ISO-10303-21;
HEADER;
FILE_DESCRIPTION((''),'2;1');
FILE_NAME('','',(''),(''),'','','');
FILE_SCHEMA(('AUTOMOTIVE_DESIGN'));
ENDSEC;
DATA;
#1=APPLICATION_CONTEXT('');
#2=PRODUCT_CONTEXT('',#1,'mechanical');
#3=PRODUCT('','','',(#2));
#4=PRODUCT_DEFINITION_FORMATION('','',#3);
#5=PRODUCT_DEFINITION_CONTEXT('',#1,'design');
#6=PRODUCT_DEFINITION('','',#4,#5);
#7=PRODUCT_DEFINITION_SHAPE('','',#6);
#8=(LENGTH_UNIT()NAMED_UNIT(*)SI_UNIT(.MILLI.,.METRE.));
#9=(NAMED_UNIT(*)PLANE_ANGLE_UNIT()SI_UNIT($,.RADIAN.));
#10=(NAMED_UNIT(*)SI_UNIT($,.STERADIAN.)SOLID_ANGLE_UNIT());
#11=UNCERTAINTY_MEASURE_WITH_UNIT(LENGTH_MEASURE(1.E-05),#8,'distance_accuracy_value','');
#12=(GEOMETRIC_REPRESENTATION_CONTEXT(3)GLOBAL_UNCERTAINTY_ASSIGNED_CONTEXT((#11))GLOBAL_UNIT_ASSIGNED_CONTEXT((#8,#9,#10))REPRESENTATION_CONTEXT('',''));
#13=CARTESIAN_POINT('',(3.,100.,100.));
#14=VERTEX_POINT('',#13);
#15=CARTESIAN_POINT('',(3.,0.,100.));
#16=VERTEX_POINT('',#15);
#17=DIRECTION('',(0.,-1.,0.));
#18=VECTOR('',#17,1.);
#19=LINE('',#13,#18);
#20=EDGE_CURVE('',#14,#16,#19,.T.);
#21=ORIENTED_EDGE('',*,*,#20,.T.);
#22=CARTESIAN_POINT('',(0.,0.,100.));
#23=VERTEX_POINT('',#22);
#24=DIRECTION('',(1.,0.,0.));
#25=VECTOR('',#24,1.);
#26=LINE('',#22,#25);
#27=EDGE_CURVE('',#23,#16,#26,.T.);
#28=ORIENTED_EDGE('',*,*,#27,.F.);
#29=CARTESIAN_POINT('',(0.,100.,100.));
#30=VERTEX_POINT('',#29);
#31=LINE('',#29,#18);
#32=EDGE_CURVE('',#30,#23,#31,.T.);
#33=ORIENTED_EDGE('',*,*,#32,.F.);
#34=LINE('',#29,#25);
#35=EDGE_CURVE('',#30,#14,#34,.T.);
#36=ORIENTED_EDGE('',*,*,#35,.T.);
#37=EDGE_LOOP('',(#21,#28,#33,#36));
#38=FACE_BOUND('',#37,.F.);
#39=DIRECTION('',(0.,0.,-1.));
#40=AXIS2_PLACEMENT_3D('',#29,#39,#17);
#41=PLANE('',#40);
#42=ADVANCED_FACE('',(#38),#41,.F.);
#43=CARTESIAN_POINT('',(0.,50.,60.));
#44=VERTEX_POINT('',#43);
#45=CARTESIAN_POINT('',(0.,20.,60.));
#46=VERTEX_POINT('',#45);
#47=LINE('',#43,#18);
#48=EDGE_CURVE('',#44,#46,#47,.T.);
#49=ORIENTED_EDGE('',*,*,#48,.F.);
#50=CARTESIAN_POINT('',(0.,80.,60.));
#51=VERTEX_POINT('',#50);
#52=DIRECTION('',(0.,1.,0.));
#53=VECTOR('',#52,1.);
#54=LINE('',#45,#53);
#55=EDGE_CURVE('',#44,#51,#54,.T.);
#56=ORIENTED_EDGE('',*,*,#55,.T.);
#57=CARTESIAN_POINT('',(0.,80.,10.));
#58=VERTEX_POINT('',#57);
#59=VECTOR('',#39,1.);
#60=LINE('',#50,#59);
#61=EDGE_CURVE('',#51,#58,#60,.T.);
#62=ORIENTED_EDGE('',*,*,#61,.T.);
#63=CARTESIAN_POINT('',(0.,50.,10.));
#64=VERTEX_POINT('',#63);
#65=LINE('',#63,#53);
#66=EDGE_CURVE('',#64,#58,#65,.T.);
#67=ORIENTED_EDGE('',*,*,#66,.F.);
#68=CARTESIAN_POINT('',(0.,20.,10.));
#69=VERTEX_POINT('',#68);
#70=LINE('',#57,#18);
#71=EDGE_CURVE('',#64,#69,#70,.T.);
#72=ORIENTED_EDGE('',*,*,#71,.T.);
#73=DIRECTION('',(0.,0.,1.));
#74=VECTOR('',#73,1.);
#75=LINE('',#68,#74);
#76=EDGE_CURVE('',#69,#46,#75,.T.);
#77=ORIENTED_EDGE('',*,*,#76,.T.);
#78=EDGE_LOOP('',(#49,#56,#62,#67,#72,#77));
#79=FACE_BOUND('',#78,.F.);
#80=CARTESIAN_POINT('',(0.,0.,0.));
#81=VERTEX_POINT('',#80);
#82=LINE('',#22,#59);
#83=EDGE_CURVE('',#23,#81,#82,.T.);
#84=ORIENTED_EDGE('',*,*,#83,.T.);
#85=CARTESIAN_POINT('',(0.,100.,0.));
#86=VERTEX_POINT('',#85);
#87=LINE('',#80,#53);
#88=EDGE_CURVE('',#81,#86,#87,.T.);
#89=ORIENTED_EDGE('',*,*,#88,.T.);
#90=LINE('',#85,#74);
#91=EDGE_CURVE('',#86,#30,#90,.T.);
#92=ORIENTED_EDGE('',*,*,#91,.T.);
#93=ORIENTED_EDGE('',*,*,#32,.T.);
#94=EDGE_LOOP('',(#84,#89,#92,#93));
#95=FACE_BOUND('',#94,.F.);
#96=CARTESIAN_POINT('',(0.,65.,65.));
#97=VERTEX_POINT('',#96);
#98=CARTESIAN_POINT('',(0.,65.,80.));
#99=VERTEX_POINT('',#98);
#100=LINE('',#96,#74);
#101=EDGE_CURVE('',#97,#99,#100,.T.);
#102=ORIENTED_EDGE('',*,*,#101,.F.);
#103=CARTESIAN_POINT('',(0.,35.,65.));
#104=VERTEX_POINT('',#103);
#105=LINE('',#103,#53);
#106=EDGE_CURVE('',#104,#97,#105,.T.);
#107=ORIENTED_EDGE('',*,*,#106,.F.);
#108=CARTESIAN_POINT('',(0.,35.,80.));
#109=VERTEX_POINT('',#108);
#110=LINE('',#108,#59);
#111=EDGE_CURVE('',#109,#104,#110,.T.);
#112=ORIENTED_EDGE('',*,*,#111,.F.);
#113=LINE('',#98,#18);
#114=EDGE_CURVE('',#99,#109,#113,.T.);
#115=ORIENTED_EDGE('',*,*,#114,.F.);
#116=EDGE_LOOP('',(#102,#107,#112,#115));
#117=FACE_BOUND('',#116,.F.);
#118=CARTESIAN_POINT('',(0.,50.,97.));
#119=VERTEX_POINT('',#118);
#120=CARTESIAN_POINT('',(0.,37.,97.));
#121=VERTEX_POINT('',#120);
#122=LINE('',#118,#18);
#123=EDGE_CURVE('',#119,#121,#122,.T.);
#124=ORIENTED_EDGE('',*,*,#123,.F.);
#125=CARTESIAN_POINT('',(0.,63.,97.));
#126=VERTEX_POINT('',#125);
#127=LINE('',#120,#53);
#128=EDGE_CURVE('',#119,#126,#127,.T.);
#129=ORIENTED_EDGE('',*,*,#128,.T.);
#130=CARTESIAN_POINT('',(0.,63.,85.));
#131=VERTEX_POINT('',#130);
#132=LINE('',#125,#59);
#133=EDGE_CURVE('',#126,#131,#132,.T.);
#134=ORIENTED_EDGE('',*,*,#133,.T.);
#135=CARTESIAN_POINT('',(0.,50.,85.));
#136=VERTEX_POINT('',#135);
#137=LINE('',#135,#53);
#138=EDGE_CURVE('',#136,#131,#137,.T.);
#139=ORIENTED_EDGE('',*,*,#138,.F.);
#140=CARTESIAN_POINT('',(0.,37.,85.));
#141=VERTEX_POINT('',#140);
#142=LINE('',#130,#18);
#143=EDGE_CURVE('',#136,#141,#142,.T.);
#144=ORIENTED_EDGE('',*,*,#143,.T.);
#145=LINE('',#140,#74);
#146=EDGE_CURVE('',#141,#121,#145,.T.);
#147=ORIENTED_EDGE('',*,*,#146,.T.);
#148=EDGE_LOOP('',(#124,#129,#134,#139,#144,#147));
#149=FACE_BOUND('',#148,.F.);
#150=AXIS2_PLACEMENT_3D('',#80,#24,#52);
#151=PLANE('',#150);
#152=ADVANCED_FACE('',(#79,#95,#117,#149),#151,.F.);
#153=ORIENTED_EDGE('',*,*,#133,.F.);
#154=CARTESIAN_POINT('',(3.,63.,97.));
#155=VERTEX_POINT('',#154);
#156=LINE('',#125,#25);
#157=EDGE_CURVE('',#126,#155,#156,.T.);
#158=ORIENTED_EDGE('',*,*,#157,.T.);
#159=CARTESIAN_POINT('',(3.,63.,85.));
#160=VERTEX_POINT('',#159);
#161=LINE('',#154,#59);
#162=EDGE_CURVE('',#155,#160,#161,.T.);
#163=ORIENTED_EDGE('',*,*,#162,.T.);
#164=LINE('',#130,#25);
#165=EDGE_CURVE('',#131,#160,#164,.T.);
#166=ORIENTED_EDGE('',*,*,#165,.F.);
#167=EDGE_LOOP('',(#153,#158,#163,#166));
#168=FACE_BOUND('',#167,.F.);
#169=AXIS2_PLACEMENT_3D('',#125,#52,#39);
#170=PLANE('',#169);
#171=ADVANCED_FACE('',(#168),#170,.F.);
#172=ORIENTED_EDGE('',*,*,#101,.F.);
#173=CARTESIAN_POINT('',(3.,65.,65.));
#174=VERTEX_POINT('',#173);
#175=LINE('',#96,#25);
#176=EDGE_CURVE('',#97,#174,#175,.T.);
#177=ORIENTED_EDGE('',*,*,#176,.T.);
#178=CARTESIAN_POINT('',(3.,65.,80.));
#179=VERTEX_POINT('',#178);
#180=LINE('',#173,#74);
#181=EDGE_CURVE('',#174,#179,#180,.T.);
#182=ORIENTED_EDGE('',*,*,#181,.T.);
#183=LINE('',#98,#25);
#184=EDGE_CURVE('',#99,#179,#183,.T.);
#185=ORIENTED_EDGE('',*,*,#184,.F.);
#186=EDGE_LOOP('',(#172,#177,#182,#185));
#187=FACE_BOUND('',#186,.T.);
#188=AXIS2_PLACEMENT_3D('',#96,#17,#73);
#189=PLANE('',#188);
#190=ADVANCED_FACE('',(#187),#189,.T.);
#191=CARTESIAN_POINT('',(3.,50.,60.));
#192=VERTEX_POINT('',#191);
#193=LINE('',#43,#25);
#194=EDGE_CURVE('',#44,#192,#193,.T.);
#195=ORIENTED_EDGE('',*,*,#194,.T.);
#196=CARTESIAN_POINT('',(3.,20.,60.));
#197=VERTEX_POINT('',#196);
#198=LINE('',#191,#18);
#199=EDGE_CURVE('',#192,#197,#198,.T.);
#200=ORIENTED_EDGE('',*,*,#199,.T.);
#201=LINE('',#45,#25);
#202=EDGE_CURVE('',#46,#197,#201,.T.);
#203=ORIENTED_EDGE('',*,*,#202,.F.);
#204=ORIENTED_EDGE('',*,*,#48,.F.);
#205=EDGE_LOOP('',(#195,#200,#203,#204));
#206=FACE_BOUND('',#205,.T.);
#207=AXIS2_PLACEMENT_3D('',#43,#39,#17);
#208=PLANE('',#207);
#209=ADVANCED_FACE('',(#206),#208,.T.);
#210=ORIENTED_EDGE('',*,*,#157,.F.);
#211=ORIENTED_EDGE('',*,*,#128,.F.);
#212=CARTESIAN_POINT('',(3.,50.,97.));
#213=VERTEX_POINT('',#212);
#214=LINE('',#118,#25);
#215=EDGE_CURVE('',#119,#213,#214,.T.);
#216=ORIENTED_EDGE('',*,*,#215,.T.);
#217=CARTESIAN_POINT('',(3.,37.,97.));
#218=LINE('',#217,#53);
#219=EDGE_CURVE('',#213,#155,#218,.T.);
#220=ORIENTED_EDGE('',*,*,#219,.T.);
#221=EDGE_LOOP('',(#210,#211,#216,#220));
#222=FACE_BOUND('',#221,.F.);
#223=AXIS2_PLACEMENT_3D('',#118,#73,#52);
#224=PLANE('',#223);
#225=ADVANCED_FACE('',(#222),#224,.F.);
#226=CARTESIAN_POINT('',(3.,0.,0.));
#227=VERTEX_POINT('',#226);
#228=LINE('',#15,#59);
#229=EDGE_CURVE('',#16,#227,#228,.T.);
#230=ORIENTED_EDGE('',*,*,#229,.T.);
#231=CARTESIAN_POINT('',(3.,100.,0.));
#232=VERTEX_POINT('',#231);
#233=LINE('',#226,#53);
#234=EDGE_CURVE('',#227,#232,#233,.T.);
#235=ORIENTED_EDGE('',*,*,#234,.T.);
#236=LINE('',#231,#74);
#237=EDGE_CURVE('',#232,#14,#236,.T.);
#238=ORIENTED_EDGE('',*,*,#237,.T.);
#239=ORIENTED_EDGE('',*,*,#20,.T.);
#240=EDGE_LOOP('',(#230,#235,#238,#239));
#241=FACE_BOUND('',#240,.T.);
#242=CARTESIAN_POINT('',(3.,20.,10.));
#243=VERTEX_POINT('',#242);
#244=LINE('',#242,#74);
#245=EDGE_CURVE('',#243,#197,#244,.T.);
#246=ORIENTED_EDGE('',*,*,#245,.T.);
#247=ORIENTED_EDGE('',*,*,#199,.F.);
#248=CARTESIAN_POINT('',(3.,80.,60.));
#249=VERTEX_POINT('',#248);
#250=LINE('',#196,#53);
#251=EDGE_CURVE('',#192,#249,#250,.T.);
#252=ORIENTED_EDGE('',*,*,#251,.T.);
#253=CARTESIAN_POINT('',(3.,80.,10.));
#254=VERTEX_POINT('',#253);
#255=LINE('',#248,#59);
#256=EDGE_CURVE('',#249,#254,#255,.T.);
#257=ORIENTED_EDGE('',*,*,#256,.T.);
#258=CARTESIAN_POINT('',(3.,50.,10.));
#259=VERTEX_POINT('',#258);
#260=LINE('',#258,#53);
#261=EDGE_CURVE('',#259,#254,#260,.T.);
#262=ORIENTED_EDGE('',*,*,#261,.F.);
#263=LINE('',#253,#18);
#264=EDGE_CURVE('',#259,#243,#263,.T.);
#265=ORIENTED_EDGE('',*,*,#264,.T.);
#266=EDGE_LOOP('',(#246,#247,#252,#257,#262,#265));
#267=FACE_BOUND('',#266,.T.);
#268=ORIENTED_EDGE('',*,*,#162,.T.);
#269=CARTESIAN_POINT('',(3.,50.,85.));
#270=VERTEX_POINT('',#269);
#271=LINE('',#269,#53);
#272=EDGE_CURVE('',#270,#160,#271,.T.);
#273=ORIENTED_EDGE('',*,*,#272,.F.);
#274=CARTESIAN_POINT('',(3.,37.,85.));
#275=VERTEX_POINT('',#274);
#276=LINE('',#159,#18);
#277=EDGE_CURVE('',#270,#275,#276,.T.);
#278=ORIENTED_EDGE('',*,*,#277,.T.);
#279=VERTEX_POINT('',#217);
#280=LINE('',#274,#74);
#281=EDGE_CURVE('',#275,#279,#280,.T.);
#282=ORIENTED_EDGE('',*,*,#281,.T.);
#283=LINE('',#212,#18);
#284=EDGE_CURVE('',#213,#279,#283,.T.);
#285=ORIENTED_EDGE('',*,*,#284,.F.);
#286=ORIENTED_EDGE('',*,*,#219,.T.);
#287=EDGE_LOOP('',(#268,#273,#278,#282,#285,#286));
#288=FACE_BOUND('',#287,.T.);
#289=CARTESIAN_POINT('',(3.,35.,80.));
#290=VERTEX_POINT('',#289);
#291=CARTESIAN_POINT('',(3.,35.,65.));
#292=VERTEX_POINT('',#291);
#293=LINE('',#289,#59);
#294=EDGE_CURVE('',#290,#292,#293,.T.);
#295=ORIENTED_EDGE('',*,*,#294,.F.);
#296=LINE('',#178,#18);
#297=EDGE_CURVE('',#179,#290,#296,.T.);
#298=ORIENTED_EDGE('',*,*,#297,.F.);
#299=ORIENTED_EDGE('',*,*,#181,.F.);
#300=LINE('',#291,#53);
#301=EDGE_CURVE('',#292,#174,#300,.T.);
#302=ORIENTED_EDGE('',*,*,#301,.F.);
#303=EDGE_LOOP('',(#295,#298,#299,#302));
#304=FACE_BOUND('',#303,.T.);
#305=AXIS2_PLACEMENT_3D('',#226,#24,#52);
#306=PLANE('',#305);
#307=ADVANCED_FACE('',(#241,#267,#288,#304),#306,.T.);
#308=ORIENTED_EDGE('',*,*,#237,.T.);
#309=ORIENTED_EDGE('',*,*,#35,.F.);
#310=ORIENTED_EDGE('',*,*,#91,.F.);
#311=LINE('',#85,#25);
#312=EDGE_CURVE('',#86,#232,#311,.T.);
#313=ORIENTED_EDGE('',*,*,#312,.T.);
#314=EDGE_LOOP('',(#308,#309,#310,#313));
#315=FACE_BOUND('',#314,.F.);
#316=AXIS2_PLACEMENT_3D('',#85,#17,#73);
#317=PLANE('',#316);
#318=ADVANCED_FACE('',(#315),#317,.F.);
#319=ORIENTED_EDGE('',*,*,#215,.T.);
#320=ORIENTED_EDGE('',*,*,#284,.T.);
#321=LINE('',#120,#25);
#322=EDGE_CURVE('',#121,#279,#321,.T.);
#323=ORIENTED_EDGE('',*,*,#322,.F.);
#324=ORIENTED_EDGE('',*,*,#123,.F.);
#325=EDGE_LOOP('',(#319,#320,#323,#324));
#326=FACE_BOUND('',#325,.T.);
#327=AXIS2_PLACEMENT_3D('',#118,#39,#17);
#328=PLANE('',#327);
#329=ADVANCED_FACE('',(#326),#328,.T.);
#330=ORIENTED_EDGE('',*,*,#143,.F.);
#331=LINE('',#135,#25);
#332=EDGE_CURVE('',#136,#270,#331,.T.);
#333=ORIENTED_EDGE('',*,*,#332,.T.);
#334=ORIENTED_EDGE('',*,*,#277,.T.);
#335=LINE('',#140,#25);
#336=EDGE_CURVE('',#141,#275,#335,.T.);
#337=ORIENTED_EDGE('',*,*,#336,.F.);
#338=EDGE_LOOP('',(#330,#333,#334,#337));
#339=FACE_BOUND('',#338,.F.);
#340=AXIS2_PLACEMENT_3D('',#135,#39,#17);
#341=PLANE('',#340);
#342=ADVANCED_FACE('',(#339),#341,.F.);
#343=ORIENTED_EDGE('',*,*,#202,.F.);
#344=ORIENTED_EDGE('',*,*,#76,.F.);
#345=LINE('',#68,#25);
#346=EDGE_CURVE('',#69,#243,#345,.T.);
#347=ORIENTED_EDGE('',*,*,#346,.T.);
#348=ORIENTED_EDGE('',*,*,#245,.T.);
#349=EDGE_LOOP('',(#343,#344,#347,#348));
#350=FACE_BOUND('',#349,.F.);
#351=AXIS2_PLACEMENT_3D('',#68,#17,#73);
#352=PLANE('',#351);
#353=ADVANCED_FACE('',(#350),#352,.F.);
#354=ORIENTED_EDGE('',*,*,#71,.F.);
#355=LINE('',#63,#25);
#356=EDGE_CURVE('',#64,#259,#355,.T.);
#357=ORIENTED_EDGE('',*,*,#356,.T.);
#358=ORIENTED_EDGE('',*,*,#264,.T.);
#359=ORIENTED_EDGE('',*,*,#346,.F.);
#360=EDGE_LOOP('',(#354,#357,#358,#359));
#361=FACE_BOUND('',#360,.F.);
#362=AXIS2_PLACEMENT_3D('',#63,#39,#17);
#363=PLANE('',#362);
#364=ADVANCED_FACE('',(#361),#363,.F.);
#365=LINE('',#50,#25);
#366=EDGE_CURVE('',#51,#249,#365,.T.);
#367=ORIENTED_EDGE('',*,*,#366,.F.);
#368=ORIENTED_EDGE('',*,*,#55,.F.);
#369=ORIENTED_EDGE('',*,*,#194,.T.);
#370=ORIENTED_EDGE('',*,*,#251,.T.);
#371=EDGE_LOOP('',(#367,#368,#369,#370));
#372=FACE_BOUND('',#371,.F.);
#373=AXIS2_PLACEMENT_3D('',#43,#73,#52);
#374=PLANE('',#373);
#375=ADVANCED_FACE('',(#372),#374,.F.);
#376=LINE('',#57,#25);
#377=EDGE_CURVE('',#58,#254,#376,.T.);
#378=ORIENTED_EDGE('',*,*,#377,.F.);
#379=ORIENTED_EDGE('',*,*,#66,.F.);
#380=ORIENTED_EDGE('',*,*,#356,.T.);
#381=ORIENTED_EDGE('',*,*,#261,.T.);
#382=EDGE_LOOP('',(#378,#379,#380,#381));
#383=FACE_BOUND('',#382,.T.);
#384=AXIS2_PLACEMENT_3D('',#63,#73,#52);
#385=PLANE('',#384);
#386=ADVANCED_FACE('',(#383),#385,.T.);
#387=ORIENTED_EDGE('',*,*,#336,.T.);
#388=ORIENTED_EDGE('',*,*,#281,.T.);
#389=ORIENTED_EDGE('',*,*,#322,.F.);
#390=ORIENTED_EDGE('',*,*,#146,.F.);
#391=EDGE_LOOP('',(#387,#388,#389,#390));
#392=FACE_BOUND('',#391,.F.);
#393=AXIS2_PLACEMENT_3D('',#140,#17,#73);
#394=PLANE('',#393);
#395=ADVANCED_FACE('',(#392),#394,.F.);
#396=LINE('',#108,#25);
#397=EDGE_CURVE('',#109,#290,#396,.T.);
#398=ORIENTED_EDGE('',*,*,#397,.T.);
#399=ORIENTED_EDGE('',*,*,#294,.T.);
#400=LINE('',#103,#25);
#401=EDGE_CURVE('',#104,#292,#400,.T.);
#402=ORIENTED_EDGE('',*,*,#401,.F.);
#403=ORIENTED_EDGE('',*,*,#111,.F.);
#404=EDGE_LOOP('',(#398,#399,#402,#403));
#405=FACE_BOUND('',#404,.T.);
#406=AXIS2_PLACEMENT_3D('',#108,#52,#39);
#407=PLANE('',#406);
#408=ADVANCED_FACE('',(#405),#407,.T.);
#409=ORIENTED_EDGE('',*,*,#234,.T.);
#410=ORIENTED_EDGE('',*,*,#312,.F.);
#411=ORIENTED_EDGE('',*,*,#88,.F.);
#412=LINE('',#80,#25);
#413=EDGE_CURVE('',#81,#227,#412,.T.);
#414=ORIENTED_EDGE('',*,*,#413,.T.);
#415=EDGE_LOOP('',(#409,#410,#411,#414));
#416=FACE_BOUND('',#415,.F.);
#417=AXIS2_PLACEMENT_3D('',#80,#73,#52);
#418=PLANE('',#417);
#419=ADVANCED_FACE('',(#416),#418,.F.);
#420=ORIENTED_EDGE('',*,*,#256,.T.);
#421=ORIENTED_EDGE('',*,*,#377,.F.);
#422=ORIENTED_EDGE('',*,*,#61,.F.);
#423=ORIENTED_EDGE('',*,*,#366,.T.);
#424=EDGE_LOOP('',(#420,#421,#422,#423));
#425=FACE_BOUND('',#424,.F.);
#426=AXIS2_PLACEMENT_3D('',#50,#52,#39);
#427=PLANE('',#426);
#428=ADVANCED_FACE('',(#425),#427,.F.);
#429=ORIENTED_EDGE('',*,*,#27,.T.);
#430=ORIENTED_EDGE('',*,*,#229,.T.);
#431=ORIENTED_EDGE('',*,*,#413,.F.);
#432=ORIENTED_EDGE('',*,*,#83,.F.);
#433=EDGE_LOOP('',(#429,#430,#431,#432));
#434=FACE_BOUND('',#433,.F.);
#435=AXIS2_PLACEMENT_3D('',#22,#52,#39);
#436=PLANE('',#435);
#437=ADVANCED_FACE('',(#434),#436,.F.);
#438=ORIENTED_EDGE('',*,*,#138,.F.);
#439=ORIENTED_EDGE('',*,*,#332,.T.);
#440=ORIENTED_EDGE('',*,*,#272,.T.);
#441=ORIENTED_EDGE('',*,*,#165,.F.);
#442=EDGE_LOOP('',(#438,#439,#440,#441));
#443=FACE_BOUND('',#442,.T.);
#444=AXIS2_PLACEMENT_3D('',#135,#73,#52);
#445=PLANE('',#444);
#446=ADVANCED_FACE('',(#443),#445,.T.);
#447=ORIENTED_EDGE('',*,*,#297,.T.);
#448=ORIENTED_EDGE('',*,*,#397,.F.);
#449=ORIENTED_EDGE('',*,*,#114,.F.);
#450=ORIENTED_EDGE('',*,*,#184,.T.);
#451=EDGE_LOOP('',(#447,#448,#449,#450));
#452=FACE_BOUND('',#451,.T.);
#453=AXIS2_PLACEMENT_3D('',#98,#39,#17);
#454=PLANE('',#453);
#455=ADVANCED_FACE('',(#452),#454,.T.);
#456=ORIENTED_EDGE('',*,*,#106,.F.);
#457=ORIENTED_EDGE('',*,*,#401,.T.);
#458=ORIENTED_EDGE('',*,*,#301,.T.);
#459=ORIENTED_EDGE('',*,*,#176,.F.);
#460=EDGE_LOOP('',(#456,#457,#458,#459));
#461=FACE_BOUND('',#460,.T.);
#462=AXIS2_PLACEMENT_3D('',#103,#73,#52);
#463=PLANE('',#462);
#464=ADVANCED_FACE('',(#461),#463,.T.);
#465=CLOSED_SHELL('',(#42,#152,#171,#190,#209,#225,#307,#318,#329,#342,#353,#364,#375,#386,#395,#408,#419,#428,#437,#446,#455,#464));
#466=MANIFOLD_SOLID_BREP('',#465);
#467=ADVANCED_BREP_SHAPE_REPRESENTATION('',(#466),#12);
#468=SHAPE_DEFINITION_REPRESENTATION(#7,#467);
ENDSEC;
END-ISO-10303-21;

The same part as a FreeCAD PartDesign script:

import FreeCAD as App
import Part
import Sketcher

doc = App.newDocument("Part")
params = doc.addObject("Spreadsheet::Sheet", "Params")
for row, (alias, value) in enumerate([
    ("sketch1_width", "100 mm"),
    ("sketch1_width2", "30 mm"),
    ("sketch1_height", "12 mm"),
    ("sketch1_width3", "60 mm"),
    ("sketch1_width4", "26 mm"),
    ("pad1_length", "3 mm"),
], start=1):
    params.set(f"A{row}", alias)
    params.set(f"B{row}", "=" + value)
    params.setAlias(f"B{row}", alias)

body = doc.addObject("PartDesign::Body", "Body")

# Sketch on YZ plane
sketch1 = body.newObject("Sketcher::SketchObject", "Sketch")
sketch1.AttachmentSupport = (doc.getObject("YZ_Plane"), [""])
sketch1.MapMode = "FlatFace"
sketch1.addGeometry(Part.LineSegment(App.Vector(0, 100, 0), App.Vector(0, 0, 0)), False)
sketch1.addGeometry(Part.LineSegment(App.Vector(0, 0, 0), App.Vector(100, 0, 0)), False)
sketch1.addGeometry(Part.LineSegment(App.Vector(100, 0, 0), App.Vector(100, 100, 0)), False)
sketch1.addGeometry(Part.LineSegment(App.Vector(100, 100, 0), App.Vector(0, 100, 0)), False)
sketch1.addGeometry(Part.LineSegment(App.Vector(80, 10, 0), App.Vector(20, 10, 0)), False)
sketch1.addGeometry(Part.LineSegment(App.Vector(20, 10, 0), App.Vector(20, 60, 0)), False)
sketch1.addGeometry(Part.LineSegment(App.Vector(20, 60, 0), App.Vector(80, 60, 0)), False)
sketch1.addGeometry(Part.LineSegment(App.Vector(80, 60, 0), App.Vector(80, 10, 0)), False)
sketch1.addGeometry(Part.LineSegment(App.Vector(65, 65, 0), App.Vector(35, 65, 0)), False)
sketch1.addGeometry(Part.LineSegment(App.Vector(35, 65, 0), App.Vector(35, 80, 0)), False)
sketch1.addGeometry(Part.LineSegment(App.Vector(35, 80, 0), App.Vector(65, 80, 0)), False)
sketch1.addGeometry(Part.LineSegment(App.Vector(65, 80, 0), App.Vector(65, 65, 0)), False)
sketch1.addGeometry(Part.LineSegment(App.Vector(63, 85, 0), App.Vector(37, 85, 0)), False)
sketch1.addGeometry(Part.LineSegment(App.Vector(37, 85, 0), App.Vector(37, 97, 0)), False)
sketch1.addGeometry(Part.LineSegment(App.Vector(37, 97, 0), App.Vector(63, 97, 0)), False)
sketch1.addGeometry(Part.LineSegment(App.Vector(63, 97, 0), App.Vector(63, 85, 0)), False)
sketch1.addConstraint(Sketcher.Constraint("Coincident", 0, 2, 1, 1))
sketch1.addConstraint(Sketcher.Constraint("Coincident", 1, 2, 2, 1))
sketch1.addConstraint(Sketcher.Constraint("Coincident", 2, 2, 3, 1))
sketch1.addConstraint(Sketcher.Constraint("Coincident", 3, 2, 0, 1))
sketch1.addConstraint(Sketcher.Constraint("Coincident", 4, 2, 5, 1))
sketch1.addConstraint(Sketcher.Constraint("Coincident", 5, 2, 6, 1))
sketch1.addConstraint(Sketcher.Constraint("Coincident", 6, 2, 7, 1))
sketch1.addConstraint(Sketcher.Constraint("Coincident", 7, 2, 4, 1))
sketch1.addConstraint(Sketcher.Constraint("Coincident", 8, 2, 9, 1))
sketch1.addConstraint(Sketcher.Constraint("Coincident", 9, 2, 10, 1))
sketch1.addConstraint(Sketcher.Constraint("Coincident", 10, 2, 11, 1))
sketch1.addConstraint(Sketcher.Constraint("Coincident", 11, 2, 8, 1))
sketch1.addConstraint(Sketcher.Constraint("Coincident", 12, 2, 13, 1))
sketch1.addConstraint(Sketcher.Constraint("Coincident", 13, 2, 14, 1))
sketch1.addConstraint(Sketcher.Constraint("Coincident", 14, 2, 15, 1))
sketch1.addConstraint(Sketcher.Constraint("Coincident", 15, 2, 12, 1))
sketch1.addConstraint(Sketcher.Constraint("Vertical", 0))
sketch1.addConstraint(Sketcher.Constraint("Horizontal", 1))
sketch1.addConstraint(Sketcher.Constraint("Vertical", 2))
sketch1.addConstraint(Sketcher.Constraint("Horizontal", 3))
sketch1.addConstraint(Sketcher.Constraint("Horizontal", 4))
sketch1.addConstraint(Sketcher.Constraint("Vertical", 5))
sketch1.addConstraint(Sketcher.Constraint("Horizontal", 6))
sketch1.addConstraint(Sketcher.Constraint("Vertical", 7))
sketch1.addConstraint(Sketcher.Constraint("Horizontal", 8))
sketch1.addConstraint(Sketcher.Constraint("Vertical", 9))
sketch1.addConstraint(Sketcher.Constraint("Horizontal", 10))
sketch1.addConstraint(Sketcher.Constraint("Vertical", 11))
sketch1.addConstraint(Sketcher.Constraint("Horizontal", 12))
sketch1.addConstraint(Sketcher.Constraint("Vertical", 13))
sketch1.addConstraint(Sketcher.Constraint("Horizontal", 14))
sketch1.addConstraint(Sketcher.Constraint("Vertical", 15))
sketch1.addConstraint(Sketcher.Constraint("Coincident", 0, 2, -1, 1))
sketch1.addConstraint(Sketcher.Constraint("Equal", 3, 0))
sketch1.addConstraint(Sketcher.Constraint("DistanceX", 1, 1, 1, 2, 100.0))
sketch1.addConstraint(Sketcher.Constraint("DistanceX", 8, 2, 8, 1, 30.0))
sketch1.addConstraint(Sketcher.Constraint("DistanceY", 13, 1, 13, 2, 12.0))
sketch1.addConstraint(Sketcher.Constraint("DistanceX", 4, 2, 4, 1, 60.0))
sketch1.addConstraint(Sketcher.Constraint("DistanceX", 12, 2, 12, 1, 26.0))
sketch1.addConstraint(Sketcher.Constraint("DistanceY", 5, 1, 5, 2, 50.0))
sketch1.addConstraint(Sketcher.Constraint("DistanceY", 9, 1, 9, 2, 15.0))
sketch1.addConstraint(Sketcher.Constraint("DistanceX", -1, 1, 4, 2, 20.0))
sketch1.addConstraint(Sketcher.Constraint("DistanceY", -1, 1, 4, 2, 10.0))
sketch1.addConstraint(Sketcher.Constraint("DistanceX", -1, 1, 8, 2, 35.0))
sketch1.addConstraint(Sketcher.Constraint("DistanceY", -1, 1, 8, 2, 65.0))
sketch1.addConstraint(Sketcher.Constraint("DistanceX", -1, 1, 12, 2, 37.0))
sketch1.addConstraint(Sketcher.Constraint("DistanceY", -1, 1, 12, 2, 85.0))
sketch1.setExpression("Constraints[34]", "Params.sketch1_width")
sketch1.setExpression("Constraints[35]", "Params.sketch1_width2")
sketch1.setExpression("Constraints[36]", "Params.sketch1_height")
sketch1.setExpression("Constraints[37]", "Params.sketch1_width3")
sketch1.setExpression("Constraints[38]", "Params.sketch1_width4")
pad1 = body.newObject("PartDesign::Pad", "Pad")
pad1.Profile = sketch1
pad1.setExpression("Length", "Params.pad1_length")

doc.recompute()
